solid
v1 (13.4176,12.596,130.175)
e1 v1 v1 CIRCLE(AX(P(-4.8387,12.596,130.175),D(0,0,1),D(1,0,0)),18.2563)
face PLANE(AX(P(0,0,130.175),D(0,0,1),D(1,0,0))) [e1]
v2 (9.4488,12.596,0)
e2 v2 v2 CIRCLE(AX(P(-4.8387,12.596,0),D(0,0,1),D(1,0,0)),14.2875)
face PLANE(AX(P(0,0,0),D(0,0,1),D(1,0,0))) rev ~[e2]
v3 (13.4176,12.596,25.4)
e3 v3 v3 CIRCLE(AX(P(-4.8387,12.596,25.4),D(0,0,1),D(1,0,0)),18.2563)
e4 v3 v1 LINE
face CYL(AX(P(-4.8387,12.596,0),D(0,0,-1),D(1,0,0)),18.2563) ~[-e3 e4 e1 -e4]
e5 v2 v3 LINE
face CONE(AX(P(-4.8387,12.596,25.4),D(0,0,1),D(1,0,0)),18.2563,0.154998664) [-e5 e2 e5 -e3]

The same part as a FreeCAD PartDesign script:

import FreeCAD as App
import Part
import Sketcher
from FreeCAD import Vector
Q = App.Units.Quantity


def edges_at(feature, points):
    """Names of the edges that pass closest to the given points."""
    edges = feature.Shape.Edges
    near = lambda p: min(range(len(edges)), key=lambda i: edges[i].distToShape(Part.Vertex(*p))[0])
    return sorted({f"Edge{near(p) + 1}" for p in points})

doc = App.newDocument("Part")
body = doc.addObject("PartDesign::Body", "Body")

# Sketch on XY plane
sketch1 = body.newObject("Sketcher::SketchObject", "Sketch")
sketch1.AttachmentSupport = (doc.getObject("XY_Plane"), [""])
sketch1.MapMode = "FlatFace"
sketch1.addGeometry(Part.Circle(Vector(-4.8387, 12.596, 0), Vector(0, 0, 1), 18.2563), False)
sketch1.addConstraint([
    Sketcher.Constraint("Diameter", 0, Q("1.4375 in")),
    Sketcher.Constraint("DistanceX", 0, 3, -1, 1, Q("0.1905 in")),
    Sketcher.Constraint("DistanceY", -1, 1, 0, 3, Q("0.4959 in")),
])
pad1 = body.newObject("PartDesign::Pad", "Pad")
pad1.Profile = sketch1
pad1.Length = Q("5.125 in")
doc.recompute()

chamfer = body.newObject("PartDesign::Chamfer", "Chamfer")
chamfer.Base = (pad1, edges_at(pad1, [(-23.095, 12.596, 0)]))
chamfer.ChamferType = "Two distances"
chamfer.Size = Q("0.156252 in")
chamfer.Size2 = Q("1 in")
chamfer.FlipDirection = True

doc.recompute()
